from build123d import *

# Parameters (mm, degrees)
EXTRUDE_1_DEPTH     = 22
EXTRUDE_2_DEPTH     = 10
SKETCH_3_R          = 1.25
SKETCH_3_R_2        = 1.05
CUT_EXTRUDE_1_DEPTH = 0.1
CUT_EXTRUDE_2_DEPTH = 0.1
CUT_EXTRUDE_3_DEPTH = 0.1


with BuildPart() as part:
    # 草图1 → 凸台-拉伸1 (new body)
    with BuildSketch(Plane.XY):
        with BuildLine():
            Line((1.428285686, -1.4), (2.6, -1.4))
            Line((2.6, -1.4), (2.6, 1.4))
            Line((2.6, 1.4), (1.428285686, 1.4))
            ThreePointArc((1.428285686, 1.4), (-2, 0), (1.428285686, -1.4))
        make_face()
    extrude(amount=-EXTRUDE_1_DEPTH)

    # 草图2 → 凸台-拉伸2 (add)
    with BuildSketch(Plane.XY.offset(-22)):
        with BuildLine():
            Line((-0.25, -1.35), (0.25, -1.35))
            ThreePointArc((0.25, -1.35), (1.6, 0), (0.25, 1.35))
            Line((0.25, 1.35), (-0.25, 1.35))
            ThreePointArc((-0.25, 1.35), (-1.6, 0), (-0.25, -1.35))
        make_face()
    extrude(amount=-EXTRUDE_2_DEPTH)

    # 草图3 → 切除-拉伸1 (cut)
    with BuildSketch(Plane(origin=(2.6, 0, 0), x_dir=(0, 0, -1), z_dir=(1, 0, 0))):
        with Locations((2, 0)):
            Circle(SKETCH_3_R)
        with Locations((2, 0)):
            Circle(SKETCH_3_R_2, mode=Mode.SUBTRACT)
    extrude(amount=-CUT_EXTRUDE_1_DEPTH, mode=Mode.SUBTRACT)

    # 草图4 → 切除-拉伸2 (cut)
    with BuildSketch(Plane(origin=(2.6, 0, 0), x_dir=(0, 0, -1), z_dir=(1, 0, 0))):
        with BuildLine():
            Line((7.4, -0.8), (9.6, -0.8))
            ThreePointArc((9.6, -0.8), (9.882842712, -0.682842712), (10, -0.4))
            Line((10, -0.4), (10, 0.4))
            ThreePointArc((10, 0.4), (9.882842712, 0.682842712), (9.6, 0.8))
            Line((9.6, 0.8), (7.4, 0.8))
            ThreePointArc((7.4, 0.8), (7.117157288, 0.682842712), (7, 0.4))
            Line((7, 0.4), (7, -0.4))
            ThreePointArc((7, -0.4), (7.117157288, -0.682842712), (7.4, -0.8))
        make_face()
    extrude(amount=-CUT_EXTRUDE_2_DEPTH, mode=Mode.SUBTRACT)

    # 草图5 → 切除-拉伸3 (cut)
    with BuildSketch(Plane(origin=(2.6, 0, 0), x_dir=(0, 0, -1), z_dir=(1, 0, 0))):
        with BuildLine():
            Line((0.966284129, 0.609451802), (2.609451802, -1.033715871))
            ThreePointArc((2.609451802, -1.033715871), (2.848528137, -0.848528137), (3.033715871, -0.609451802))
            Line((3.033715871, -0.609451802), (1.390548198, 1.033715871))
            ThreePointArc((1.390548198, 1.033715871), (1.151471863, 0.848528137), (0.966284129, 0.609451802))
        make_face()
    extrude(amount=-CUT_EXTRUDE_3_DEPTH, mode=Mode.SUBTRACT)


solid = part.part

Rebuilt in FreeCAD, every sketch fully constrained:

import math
import FreeCAD as App
import Part
import Sketcher
Q = App.Units.Quantity

doc = App.newDocument("Part")
body = doc.addObject("PartDesign::Body", "Body")

# Sketch on XY plane
sketch1 = body.newObject("Sketcher::SketchObject", "Sketch")
sketch1.AttachmentSupport = (doc.getObject("XY_Plane"), [""])
sketch1.MapMode = "FlatFace"
sketch1.addGeometry([
    Part.LineSegment(App.Vector(1.4, -1.4, 0), App.Vector(2.6, -1.4, 0)),
    Part.LineSegment(App.Vector(2.6, -1.4, 0), App.Vector(2.6, 1.4, 0)),
    Part.LineSegment(App.Vector(2.6, 1.4, 0), App.Vector(1.4, 1.4, 0)),
    Part.ArcOfCircle(Part.Circle(App.Vector(0, 0, 0), App.Vector(0, 0, 1), 2), math.radians(44), math.radians(316)),
], False)
sketch1.addConstraint([
    Sketcher.Constraint("Coincident", 0, 2, 1, 1),
    Sketcher.Constraint("Coincident", 1, 2, 2, 1),
    Sketcher.Constraint("Coincident", 2, 2, 3, 1),
    Sketcher.Constraint("Coincident", 3, 2, 0, 1),
    Sketcher.Constraint("Horizontal", 0),
    Sketcher.Constraint("Vertical", 1),
    Sketcher.Constraint("Horizontal", 2),
    Sketcher.Constraint("Coincident", 3, 3, -1, 1),
    Sketcher.Constraint("Vertical", 2, 2, 3, 2),
    Sketcher.Constraint("Radius", 3, Q("2 mm")),
    Sketcher.Constraint("DistanceY", 1, 1, 1, 2, Q("2.8 mm")),
    Sketcher.Constraint("DistanceX", -1, 1, 0, 2, Q("2.6 mm")),
])
pad1 = body.newObject("PartDesign::Pad", "Pad")
pad1.Profile = sketch1
pad1.Length = 22
pad1.Reversed = True

# Sketch on XY plane
sketch2 = body.newObject("Sketcher::SketchObject", "Sketch001")
sketch2.AttachmentSupport = (doc.getObject("XY_Plane"), [""])
sketch2.MapMode = "FlatFace"
sketch2.AttachmentOffset = App.Placement(App.Vector(0, 0, -22), App.Rotation())
sketch2.addGeometry([
    Part.LineSegment(App.Vector(-0.2, -1.4, 0), App.Vector(0.2, -1.4, 0)),
    Part.ArcOfCircle(Part.Circle(App.Vector(0.2, 0, 0), App.Vector(0, 0, 1), 1.4), math.radians(-90), math.radians(90)),
    Part.LineSegment(App.Vector(0.2, 1.4, 0), App.Vector(-0.2, 1.4, 0)),
    Part.ArcOfCircle(Part.Circle(App.Vector(-0.2, 0, 0), App.Vector(0, 0, 1), 1.4), math.radians(90), math.radians(270)),
], False)
sketch2.addConstraint([
    Sketcher.Constraint("Tangent", 0, 2, 1, 1),
    Sketcher.Constraint("Tangent", 1, 2, 2, 1),
    Sketcher.Constraint("Tangent", 2, 2, 3, 1),
    Sketcher.Constraint("Tangent", 3, 2, 0, 1),
    Sketcher.Constraint("Horizontal", 0),
    Sketcher.Constraint("Horizontal", 2),
    Sketcher.Constraint("Symmetric", 1, 3, 3, 3, -1, 1),
    Sketcher.Constraint("Radius", 1, Q("1.35 mm")),
    Sketcher.Constraint("DistanceX", 0, 1, 0, 2, Q("0.5 mm")),
])
pad2 = body.newObject("PartDesign::Pad", "Pad001")
pad2.Profile = sketch2
pad2.Length = 10
pad2.Reversed = True

# Sketch on YZ plane
sketch3 = body.newObject("Sketcher::SketchObject", "Sketch002")
sketch3.AttachmentSupport = (doc.getObject("YZ_Plane"), [""])
sketch3.MapMode = "FlatFace"
sketch3.AttachmentOffset = App.Placement(App.Vector(0, 0, 2.6), App.Rotation())
sketch3.addGeometry([
    Part.Circle(App.Vector(0, -2, 0), App.Vector(0, 0, 1), 1.2),
    Part.Circle(App.Vector(0, -2, 0), App.Vector(0, 0, 1), 1.1),
], False)
sketch3.addConstraint([
    Sketcher.Constraint("Coincident", 1, 3, 0, 3),
    Sketcher.Constraint("PointOnObject", 0, 3, -2),
    Sketcher.Constraint("Diameter", 0, Q("2.5 mm")),
    Sketcher.Constraint("Diameter", 1, Q("2.1 mm")),
    Sketcher.Constraint("DistanceY", 0, 3, -1, 1, Q("2 mm")),
])
pocket1 = body.newObject("PartDesign::Pocket", "Pocket")
pocket1.Profile = sketch3
pocket1.Length = 0.1

# Sketch on YZ plane
sketch4 = body.newObject("Sketcher::SketchObject", "Sketch003")
sketch4.AttachmentSupport = (doc.getObject("YZ_Plane"), [""])
sketch4.MapMode = "FlatFace"
sketch4.AttachmentOffset = App.Placement(App.Vector(0, 0, 2.6), App.Rotation())
sketch4.addGeometry([
    Part.LineSegment(App.Vector(-0.8, -7.4, 0), App.Vector(-0.8, -9.6, 0)),  # 0
    Part.ArcOfCircle(Part.Circle(App.Vector(-0.4, -9.6, 0), App.Vector(0, 0, 1), 0.4), math.radians(-180), math.radians(-90)),  # 1
    Part.LineSegment(App.Vector(-0.4, -10, 0), App.Vector(0.4, -10, 0)),  # 2
    Part.ArcOfCircle(Part.Circle(App.Vector(0.4, -9.6, 0), App.Vector(0, 0, 1), 0.4), math.radians(-90), math.radians(0)),  # 3
    Part.LineSegment(App.Vector(0.8, -9.6, 0), App.Vector(0.8, -7.4, 0)),  # 4
    Part.ArcOfCircle(Part.Circle(App.Vector(0.4, -7.4, 0), App.Vector(0, 0, 1), 0.4), math.radians(0), math.radians(90)),  # 5
    Part.LineSegment(App.Vector(0.4, -7, 0), App.Vector(-0.4, -7, 0)),  # 6
    Part.ArcOfCircle(Part.Circle(App.Vector(-0.4, -7.4, 0), App.Vector(0, 0, 1), 0.4), math.radians(90), math.radians(180)),  # 7
], False)
sketch4.addConstraint([
    Sketcher.Constraint("Tangent", 0, 2, 1, 1),
    Sketcher.Constraint("Tangent", 1, 2, 2, 1),
    Sketcher.Constraint("Tangent", 2, 2, 3, 1),
    Sketcher.Constraint("Tangent", 3, 2, 4, 1),
    Sketcher.Constraint("Tangent", 4, 2, 5, 1),
    Sketcher.Constraint("Tangent", 5, 2, 6, 1),
    Sketcher.Constraint("Tangent", 6, 2, 7, 1),
    Sketcher.Constraint("Tangent", 7, 2, 0, 1),
    Sketcher.Constraint("Vertical", 0),
    Sketcher.Constraint("Horizontal", 2),
    Sketcher.Constraint("Vertical", 4),
    Sketcher.Constraint("Horizontal", 6),
    Sketcher.Constraint("Equal", 1, 3),
    Sketcher.Constraint("Equal", 3, 5),
    Sketcher.Constraint("Equal", 5, 7),
    Sketcher.Constraint("Radius", 1, Q("0.4 mm")),
    Sketcher.Constraint("DistanceX", 2, 1, 2, 2, Q("0.8 mm")),
    Sketcher.Constraint("DistanceY", 0, 2, 0, 1, Q("2.2 mm")),
    Sketcher.Constraint("DistanceY", 1, 2, -1, 1, Q("10 mm")),
    Sketcher.Constraint("DistanceX", 1, 3, -1, 1, Q("0.4 mm")),
])
pocket2 = body.newObject("PartDesign::Pocket", "Pocket001")
pocket2.Profile = sketch4
pocket2.Length = 0.1

# Sketch on YZ plane
sketch5 = body.newObject("Sketcher::SketchObject", "Sketch004")
sketch5.AttachmentSupport = (doc.getObject("YZ_Plane"), [""])
sketch5.MapMode = "FlatFace"
sketch5.AttachmentOffset = App.Placement(App.Vector(0, 0, 2.6), App.Rotation())
sketch5.addGeometry([
    Part.LineSegment(App.Vector(0.6, -1, 0), App.Vector(-1, -2.6, 0)),
    Part.ArcOfCircle(Part.Circle(App.Vector(0, -2, 0), App.Vector(0, 0, 1), 1.2), math.radians(-149), math.radians(-121)),
    Part.LineSegment(App.Vector(-0.6, -3, 0), App.Vector(1, -1.4, 0)),
    Part.ArcOfCircle(Part.Circle(App.Vector(0, -2, 0), App.Vector(0, 0, 1), 1.2), math.radians(31), math.radians(59)),
], False)
sketch5.addConstraint([
    Sketcher.Constraint("Coincident", 0, 2, 1, 1),
    Sketcher.Constraint("Coincident", 1, 2, 2, 1),
    Sketcher.Constraint("Coincident", 2, 2, 3, 1),
    Sketcher.Constraint("Coincident", 3, 2, 0, 1),
    Sketcher.Constraint("Coincident", 3, 3, 1, 3),
    Sketcher.Constraint("Equal", 1, 3),
    Sketcher.Constraint("PointOnObject", 1, 3, -2),
    Sketcher.Constraint("Parallel", 0, 2),
    Sketcher.Constraint("Equal", 0, 2),
    Sketcher.Constraint("Radius", 1, Q("1.2 mm")),
    Sketcher.Constraint("Angle", 0, Q("-135 deg")),
    Sketcher.Constraint("DistanceY", 1, 3, -1, 1, Q("2 mm")),
    Sketcher.Constraint("Distance", 0, Q("2.32379 mm")),
])
pocket3 = body.newObject("PartDesign::Pocket", "Pocket002")
pocket3.Profile = sketch5
pocket3.Length = 0.1

doc.recompute()
